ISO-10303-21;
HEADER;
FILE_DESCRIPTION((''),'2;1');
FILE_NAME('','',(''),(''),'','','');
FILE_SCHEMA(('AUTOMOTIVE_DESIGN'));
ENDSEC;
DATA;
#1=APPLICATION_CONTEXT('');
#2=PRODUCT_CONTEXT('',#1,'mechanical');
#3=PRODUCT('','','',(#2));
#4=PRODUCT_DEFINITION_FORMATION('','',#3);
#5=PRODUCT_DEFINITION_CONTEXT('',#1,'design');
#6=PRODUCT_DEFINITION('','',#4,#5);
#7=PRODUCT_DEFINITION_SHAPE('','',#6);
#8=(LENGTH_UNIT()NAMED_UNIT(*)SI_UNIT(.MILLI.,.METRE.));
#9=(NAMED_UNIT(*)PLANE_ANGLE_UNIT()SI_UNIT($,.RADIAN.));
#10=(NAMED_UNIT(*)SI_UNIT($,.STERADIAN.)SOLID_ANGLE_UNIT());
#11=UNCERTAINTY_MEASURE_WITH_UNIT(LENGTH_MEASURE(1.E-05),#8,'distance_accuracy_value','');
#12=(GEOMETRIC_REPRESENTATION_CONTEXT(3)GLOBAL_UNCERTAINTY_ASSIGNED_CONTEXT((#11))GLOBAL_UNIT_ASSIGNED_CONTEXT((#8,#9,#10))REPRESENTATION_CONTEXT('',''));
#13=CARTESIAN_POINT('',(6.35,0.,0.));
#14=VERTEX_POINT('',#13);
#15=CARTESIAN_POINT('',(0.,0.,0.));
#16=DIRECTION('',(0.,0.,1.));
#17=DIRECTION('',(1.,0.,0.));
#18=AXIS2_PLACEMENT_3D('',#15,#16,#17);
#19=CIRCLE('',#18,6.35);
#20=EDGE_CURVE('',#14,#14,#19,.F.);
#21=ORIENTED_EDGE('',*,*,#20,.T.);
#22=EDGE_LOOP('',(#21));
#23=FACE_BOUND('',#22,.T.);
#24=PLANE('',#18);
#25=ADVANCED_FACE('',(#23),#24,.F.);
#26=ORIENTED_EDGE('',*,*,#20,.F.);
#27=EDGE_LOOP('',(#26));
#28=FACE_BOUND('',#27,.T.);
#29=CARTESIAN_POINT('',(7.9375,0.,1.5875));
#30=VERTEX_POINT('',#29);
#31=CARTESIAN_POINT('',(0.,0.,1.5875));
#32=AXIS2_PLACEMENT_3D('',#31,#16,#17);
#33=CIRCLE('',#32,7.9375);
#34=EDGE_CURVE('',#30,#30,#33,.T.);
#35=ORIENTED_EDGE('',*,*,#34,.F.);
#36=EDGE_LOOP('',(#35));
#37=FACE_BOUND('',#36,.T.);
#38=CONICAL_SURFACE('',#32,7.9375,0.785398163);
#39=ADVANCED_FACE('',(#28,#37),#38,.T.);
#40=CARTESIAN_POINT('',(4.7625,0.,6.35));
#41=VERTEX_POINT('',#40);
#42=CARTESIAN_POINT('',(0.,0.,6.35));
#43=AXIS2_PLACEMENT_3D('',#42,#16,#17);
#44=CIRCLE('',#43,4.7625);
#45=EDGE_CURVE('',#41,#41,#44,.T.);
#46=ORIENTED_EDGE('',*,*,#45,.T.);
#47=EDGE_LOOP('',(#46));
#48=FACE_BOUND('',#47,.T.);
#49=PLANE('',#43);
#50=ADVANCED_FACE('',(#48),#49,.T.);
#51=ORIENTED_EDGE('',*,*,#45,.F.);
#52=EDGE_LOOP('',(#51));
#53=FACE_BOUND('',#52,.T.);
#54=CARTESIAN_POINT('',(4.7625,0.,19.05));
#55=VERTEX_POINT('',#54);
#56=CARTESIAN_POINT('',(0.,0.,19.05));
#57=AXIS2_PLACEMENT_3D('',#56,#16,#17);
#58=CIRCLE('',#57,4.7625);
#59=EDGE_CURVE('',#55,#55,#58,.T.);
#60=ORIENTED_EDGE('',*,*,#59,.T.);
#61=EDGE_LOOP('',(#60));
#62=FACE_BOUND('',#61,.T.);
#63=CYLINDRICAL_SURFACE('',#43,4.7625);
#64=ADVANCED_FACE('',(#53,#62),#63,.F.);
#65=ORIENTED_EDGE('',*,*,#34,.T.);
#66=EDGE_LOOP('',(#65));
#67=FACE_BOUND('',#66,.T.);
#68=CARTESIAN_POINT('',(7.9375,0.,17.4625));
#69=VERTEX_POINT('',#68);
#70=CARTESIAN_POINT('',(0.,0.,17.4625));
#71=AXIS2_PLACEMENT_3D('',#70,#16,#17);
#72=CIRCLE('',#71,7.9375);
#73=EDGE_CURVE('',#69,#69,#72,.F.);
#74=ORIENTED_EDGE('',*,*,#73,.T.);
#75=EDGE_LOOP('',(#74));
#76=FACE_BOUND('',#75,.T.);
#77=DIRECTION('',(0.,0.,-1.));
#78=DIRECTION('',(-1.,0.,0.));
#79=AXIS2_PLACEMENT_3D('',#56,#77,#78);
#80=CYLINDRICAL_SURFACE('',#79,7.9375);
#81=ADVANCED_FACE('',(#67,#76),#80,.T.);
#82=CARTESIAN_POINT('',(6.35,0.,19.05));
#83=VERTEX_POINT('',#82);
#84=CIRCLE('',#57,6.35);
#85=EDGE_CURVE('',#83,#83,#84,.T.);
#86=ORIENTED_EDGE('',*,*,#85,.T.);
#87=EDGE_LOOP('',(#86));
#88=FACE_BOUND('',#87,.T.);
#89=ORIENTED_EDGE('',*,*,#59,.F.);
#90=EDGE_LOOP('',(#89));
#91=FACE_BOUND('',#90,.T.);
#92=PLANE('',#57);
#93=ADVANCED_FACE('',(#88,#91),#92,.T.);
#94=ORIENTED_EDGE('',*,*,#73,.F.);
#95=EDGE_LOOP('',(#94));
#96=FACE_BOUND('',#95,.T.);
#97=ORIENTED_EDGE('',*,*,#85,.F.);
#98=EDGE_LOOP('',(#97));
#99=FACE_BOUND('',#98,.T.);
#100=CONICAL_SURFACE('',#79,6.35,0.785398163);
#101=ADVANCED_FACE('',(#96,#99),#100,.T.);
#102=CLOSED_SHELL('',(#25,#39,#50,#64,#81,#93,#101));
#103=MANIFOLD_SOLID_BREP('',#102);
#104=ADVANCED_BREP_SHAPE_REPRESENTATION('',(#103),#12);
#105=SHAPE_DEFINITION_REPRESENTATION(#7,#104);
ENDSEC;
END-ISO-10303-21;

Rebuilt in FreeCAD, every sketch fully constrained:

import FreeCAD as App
import Part
import Sketcher

V = App.Vector
Q = App.Units.Quantity


def edges_at(feature, points):
    """Names of the edges that pass closest to the given points."""
    edges = feature.Shape.Edges
    near = lambda p: min(range(len(edges)), key=lambda i: edges[i].distToShape(Part.Vertex(*p))[0])
    return sorted({f"Edge{near(p) + 1}" for p in points})

doc = App.newDocument("Part")
body = doc.addObject("PartDesign::Body", "Body")

sketch1 = body.newObject("Sketcher::SketchObject", "Sketch")
sketch1.AttachmentSupport = (doc.getObject("XY_Plane"), [""])
sketch1.MapMode = "FlatFace"
sketch1.addGeometry(Part.Circle(V(0, 0, 0), V(0, 0, 1), 8), False)
sketch1.addConstraint(Sketcher.Constraint("Coincident", 0, 3, -1, 1))
sketch1.addConstraint(Sketcher.Constraint("Diameter", 0, Q("0.625 in")))
pad1 = body.newObject("PartDesign::Pad", "Pad")
pad1.Profile = sketch1
pad1.Length = Q("0.75 in")

sketch2 = body.newObject("Sketcher::SketchObject", "Sketch001")
sketch2.AttachmentSupport = (doc.getObject("XY_Plane"), [""])
sketch2.MapMode = "FlatFace"
sketch2.AttachmentOffset = App.Placement(V(0, 0, 0.75 * 25.4), App.Rotation())
sketch2.addGeometry(Part.Circle(V(0, 0, 0), V(0, 0, 1), 4.8), False)
sketch2.addConstraint(Sketcher.Constraint("Coincident", 0, 3, -1, 1))
sketch2.addConstraint(Sketcher.Constraint("Diameter", 0, Q("0.375 in")))
pocket1 = body.newObject("PartDesign::Pocket", "Pocket")
pocket1.Profile = sketch2
pocket1.Length = Q("0.5 in")
doc.recompute()

chamfer = body.newObject("PartDesign::Chamfer", "Chamfer")
chamfer.Base = (pocket1, edges_at(pocket1, [(-7.938, 0, 0), (-7.938, 0, 19.05)]))
chamfer.Size = Q("0.0625 in")

doc.recompute()
